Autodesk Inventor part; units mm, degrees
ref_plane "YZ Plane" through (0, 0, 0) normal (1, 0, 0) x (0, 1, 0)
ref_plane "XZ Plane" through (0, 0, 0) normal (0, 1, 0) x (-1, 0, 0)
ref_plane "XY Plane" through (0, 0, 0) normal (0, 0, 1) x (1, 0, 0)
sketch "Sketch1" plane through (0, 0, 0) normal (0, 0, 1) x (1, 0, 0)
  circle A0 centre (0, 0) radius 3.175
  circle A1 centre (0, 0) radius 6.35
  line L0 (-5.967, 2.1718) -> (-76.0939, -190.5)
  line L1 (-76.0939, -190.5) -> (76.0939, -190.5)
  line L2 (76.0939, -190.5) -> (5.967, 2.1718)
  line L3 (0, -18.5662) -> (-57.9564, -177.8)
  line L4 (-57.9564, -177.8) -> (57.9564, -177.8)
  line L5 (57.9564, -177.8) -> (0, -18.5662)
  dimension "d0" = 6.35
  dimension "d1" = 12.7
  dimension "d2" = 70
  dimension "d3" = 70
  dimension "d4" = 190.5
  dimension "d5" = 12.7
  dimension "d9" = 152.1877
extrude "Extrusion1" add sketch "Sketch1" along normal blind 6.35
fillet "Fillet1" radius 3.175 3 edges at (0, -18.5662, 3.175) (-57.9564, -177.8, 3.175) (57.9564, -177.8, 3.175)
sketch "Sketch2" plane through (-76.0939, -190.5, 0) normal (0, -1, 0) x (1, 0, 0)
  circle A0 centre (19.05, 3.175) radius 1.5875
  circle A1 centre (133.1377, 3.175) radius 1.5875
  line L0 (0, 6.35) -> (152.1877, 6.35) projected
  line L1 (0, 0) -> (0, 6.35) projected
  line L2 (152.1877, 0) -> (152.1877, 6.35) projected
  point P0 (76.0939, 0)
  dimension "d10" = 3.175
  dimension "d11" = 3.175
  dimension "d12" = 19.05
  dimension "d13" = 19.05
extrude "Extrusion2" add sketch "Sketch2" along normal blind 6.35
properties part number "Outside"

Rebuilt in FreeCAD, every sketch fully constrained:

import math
import FreeCAD as App
import Part
import Sketcher
Q = App.Units.Quantity


def edges_at(feature, points):
    """Names of the edges that pass closest to the given points."""
    edges = feature.Shape.Edges
    near = lambda p: min(range(len(edges)), key=lambda i: edges[i].distToShape(Part.Vertex(*p))[0])
    return sorted({f"Edge{near(p) + 1}" for p in points})


def add_polygon(sketch, points):
    """Adds a closed chain of lines whose ends are joined by coincident constraints."""
    first, n = sketch.GeometryCount, len(points)
    for a, b in zip(points, points[1:] + points[:1]):
        sketch.addGeometry(Part.LineSegment(App.Vector(*a, 0), App.Vector(*b, 0)), False)
    for i in range(n):
        sketch.addConstraint(Sketcher.Constraint("Coincident", first + i, 2, first + (i + 1) % n, 1))

doc = App.newDocument("Part")
body = doc.addObject("PartDesign::Body", "Body")

sketch1 = body.newObject("Sketcher::SketchObject", "Sketch")
sketch1.AttachmentSupport = (doc.getObject("XY_Plane"), [""])
sketch1.MapMode = "FlatFace"
sketch1.addGeometry(Part.ArcOfCircle(Part.Circle(App.Vector(0, 0, 0), App.Vector(0, 0, 1), 6.3), math.radians(20), math.radians(160)), False)
sketch1.addGeometry(Part.LineSegment(App.Vector(-6, 2.2, 0), App.Vector(-76.1, -190.5, 0)), False)
sketch1.addGeometry(Part.LineSegment(App.Vector(-76.1, -190.5, 0), App.Vector(76.1, -190.5, 0)), False)
sketch1.addGeometry(Part.LineSegment(App.Vector(76.1, -190.5, 0), App.Vector(6, 2.2, 0)), False)
sketch1.addGeometry(Part.Circle(App.Vector(0, 0, 0), App.Vector(0, 0, 1), 3.2), False)
add_polygon(sketch1, [(58, -177.8), (-58, -177.8), (0, -18.6)])
sketch1.addConstraint([
    Sketcher.Constraint("Tangent", 0, 2, 1, 1),
    Sketcher.Constraint("Coincident", 1, 2, 2, 1),
    Sketcher.Constraint("Coincident", 2, 2, 3, 1),
    Sketcher.Constraint("Tangent", 3, 2, 0, 1),
    Sketcher.Constraint("Horizontal", 2),
    Sketcher.Constraint("Horizontal", 5),
    Sketcher.Constraint("Coincident", 0, 3, -1, 1),
    Sketcher.Constraint("Coincident", 4, 3, -1, 1),
    Sketcher.Constraint("PointOnObject", 6, 2, -2),
    Sketcher.Constraint("Parallel", 1, 6),
    Sketcher.Constraint("Parallel", 3, 7),
    Sketcher.Constraint("Horizontal", 0, 2, 3, 2),
    Sketcher.Constraint("Diameter", 4, Q("0.25 in")),
    Sketcher.Constraint("Radius", 0, Q("0.25 in")),
    Sketcher.Constraint("Angle", 6, Q("70 deg")),
    Sketcher.Constraint("DistanceY", 1, 2, -1, 1, Q("7.5 in")),
    Sketcher.Constraint("DistanceY", 1, 2, 5, 2, Q("0.5 in")),
    Sketcher.Constraint("DistanceX", 5, 2, 5, 1, Q("4.5635 in")),
])
pad1 = body.newObject("PartDesign::Pad", "Pad")
pad1.Profile = sketch1
pad1.Length = Q("0.25 in")
doc.recompute()

fillet = body.newObject("PartDesign::Fillet", "Fillet")
fillet.Base = (pad1, edges_at(pad1, [(0, -18.566, 3.175), (-57.956, -177.8, 3.175), (57.956, -177.8, 3.175)]))
fillet.Radius = Q("0.125 in")

sketch2 = body.newObject("Sketcher::SketchObject", "Sketch001")
sketch2.AttachmentSupport = (doc.getObject("XZ_Plane"), [""])
sketch2.MapMode = "FlatFace"
sketch2.AttachmentOffset = App.Placement(App.Vector(0, 0, 7.5 * 25.4), App.Rotation())
sketch2.addGeometry([
    Part.Circle(App.Vector(-57, 3.2, 0), App.Vector(0, 0, 1), 1.6),
    Part.Circle(App.Vector(57, 3.2, 0), App.Vector(0, 0, 1), 1.6),
], False)
sketch2.addConstraint([
    Sketcher.Constraint("Equal", 0, 1),
    Sketcher.Constraint("Symmetric", 0, 3, 1, 3, -2),
    Sketcher.Constraint("Diameter", 0, Q("0.125 in")),
    Sketcher.Constraint("DistanceY", -1, 1, 0, 3, Q("0.125 in")),
    Sketcher.Constraint("DistanceX", 0, 3, -1, 1, Q("57.044 mm")),
])
pad2 = body.newObject("PartDesign::Pad", "Pad001")
pad2.Profile = sketch2
pad2.Length = Q("0.25 in")

doc.recompute()
